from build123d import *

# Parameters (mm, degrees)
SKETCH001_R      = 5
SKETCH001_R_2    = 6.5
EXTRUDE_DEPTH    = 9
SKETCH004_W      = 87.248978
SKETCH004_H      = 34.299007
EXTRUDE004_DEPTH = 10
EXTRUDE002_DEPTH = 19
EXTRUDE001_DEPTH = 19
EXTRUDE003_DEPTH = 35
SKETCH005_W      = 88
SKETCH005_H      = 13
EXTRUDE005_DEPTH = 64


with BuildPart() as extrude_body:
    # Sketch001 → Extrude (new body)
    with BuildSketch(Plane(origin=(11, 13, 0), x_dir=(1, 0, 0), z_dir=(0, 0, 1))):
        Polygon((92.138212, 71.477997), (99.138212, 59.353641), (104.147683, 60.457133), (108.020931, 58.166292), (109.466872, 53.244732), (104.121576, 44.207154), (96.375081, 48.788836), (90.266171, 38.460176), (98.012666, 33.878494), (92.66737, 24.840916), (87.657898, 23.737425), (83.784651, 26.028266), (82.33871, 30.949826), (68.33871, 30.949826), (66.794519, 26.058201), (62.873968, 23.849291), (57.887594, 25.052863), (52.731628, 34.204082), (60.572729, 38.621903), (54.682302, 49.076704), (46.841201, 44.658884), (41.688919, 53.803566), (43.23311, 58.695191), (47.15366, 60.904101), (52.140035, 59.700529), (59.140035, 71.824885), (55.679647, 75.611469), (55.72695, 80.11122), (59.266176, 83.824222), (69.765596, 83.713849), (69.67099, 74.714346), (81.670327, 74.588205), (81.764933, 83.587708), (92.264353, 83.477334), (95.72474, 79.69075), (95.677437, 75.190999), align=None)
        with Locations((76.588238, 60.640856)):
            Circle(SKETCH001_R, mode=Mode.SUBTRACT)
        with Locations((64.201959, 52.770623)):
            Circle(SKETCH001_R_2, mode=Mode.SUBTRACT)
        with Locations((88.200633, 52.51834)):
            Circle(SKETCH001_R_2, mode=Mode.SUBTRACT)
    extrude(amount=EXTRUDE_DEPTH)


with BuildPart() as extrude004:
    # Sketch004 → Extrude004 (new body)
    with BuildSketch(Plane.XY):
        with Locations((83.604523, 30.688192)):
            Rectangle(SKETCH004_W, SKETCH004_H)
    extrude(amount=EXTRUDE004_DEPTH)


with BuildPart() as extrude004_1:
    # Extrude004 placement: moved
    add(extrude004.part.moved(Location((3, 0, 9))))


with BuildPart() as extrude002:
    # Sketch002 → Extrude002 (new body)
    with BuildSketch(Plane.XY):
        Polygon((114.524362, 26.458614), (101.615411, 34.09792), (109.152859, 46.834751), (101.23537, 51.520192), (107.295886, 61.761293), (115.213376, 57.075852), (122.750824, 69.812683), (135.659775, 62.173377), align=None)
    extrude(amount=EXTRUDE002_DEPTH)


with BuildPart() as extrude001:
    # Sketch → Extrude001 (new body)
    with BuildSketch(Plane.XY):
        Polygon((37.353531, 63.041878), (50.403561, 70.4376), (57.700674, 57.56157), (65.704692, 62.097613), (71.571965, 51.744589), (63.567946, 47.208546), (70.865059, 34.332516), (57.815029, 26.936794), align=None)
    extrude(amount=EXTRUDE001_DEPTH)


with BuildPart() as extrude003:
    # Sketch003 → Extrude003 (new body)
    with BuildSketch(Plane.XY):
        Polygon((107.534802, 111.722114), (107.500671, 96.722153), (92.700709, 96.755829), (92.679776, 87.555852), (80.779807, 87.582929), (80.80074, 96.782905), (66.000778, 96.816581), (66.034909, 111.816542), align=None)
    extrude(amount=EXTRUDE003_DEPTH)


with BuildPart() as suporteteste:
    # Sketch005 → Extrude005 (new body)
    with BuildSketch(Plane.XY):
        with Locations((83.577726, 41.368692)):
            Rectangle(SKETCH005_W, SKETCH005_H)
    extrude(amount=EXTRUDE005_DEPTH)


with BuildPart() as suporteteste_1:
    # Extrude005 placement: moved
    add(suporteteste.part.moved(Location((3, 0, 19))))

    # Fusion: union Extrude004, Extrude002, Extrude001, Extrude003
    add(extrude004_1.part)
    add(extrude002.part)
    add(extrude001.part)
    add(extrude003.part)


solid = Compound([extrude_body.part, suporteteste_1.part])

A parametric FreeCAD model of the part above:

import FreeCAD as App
import Part
import Sketcher
Q = App.Units.Quantity

doc = App.newDocument("Part")
body = doc.addObject("PartDesign::Body", "Body")

# Sketch on XY plane
sketch1 = doc.addObject("Sketcher::SketchObject", "Sketch")
body.addObject(sketch1)
sketch1.AttachmentSupport = (doc.XY_Plane, [""])
sketch1.MapMode = "FlatFace"
sketch1.addGeometry([
    Part.LineSegment(App.Vector(110.1, 72.4, 0), App.Vector(103.1, 84.5, 0)),  # 0
    Part.LineSegment(App.Vector(103.1, 84.5, 0), App.Vector(106.7, 88.2, 0)),  # 1
    Part.LineSegment(App.Vector(106.7, 88.2, 0), App.Vector(106.7, 92.7, 0)),  # 2
    Part.LineSegment(App.Vector(106.7, 92.7, 0), App.Vector(103.3, 96.5, 0)),  # 3
    Part.LineSegment(App.Vector(103.3, 96.5, 0), App.Vector(92.8, 96.6, 0)),  # 4
    Part.LineSegment(App.Vector(92.8, 96.6, 0), App.Vector(92.7, 87.6, 0)),  # 5
    Part.LineSegment(App.Vector(92.7, 87.6, 0), App.Vector(80.7, 87.7, 0)),  # 6
    Part.LineSegment(App.Vector(80.7, 87.7, 0), App.Vector(80.8, 96.7, 0)),  # 7
    Part.LineSegment(App.Vector(80.8, 96.7, 0), App.Vector(70.3, 96.8, 0)),  # 8
    Part.LineSegment(App.Vector(70.3, 96.8, 0), App.Vector(66.7, 93.1, 0)),  # 9
    Part.LineSegment(App.Vector(66.7, 93.1, 0), App.Vector(66.7, 88.6, 0)),  # 10
    Part.LineSegment(App.Vector(66.7, 88.6, 0), App.Vector(70.1, 84.8, 0)),  # 11
    Part.LineSegment(App.Vector(70.1, 84.8, 0), App.Vector(63.1, 72.7, 0)),  # 12
    Part.LineSegment(App.Vector(63.1, 72.7, 0), App.Vector(58.2, 73.9, 0)),  # 13
    Part.LineSegment(App.Vector(58.2, 73.9, 0), App.Vector(54.2, 71.7, 0)),  # 14
    Part.LineSegment(App.Vector(54.2, 71.7, 0), App.Vector(52.7, 66.8, 0)),  # 15
    Part.LineSegment(App.Vector(52.7, 66.8, 0), App.Vector(57.8, 57.7, 0)),  # 16
    Part.LineSegment(App.Vector(57.8, 57.7, 0), App.Vector(65.7, 62.1, 0)),  # 17
    Part.LineSegment(App.Vector(65.7, 62.1, 0), App.Vector(71.6, 51.6, 0)),  # 18
    Part.LineSegment(App.Vector(71.6, 51.6, 0), App.Vector(63.7, 47.2, 0)),  # 19
    Part.LineSegment(App.Vector(63.7, 47.2, 0), App.Vector(68.9, 38.1, 0)),  # 20
    Part.LineSegment(App.Vector(68.9, 38.1, 0), App.Vector(73.9, 36.8, 0)),  # 21
    Part.LineSegment(App.Vector(73.9, 36.8, 0), App.Vector(77.8, 39.1, 0)),  # 22
    Part.LineSegment(App.Vector(77.8, 39.1, 0), App.Vector(79.3, 43.9, 0)),  # 23
    Part.LineSegment(App.Vector(79.3, 43.9, 0), App.Vector(93.3, 43.9, 0)),  # 24
    Part.LineSegment(App.Vector(93.3, 43.9, 0), App.Vector(94.8, 39, 0)),  # 25
    Part.LineSegment(App.Vector(94.8, 39, 0), App.Vector(98.7, 36.7, 0)),  # 26
    Part.LineSegment(App.Vector(98.7, 36.7, 0), App.Vector(103.7, 37.8, 0)),  # 27
    Part.LineSegment(App.Vector(103.7, 37.8, 0), App.Vector(109, 46.9, 0)),  # 28
    Part.LineSegment(App.Vector(109, 46.9, 0), App.Vector(101.3, 51.5, 0)),  # 29
    Part.LineSegment(App.Vector(101.3, 51.5, 0), App.Vector(107.4, 61.8, 0)),  # 30
    Part.LineSegment(App.Vector(107.4, 61.8, 0), App.Vector(115.1, 57.2, 0)),  # 31
    Part.LineSegment(App.Vector(115.1, 57.2, 0), App.Vector(120.5, 66.2, 0)),  # 32
    Part.LineSegment(App.Vector(120.5, 66.2, 0), App.Vector(119, 71.2, 0)),  # 33
    Part.LineSegment(App.Vector(119, 71.2, 0), App.Vector(115.1, 73.5, 0)),  # 34
    Part.LineSegment(App.Vector(115.1, 73.5, 0), App.Vector(110.1, 72.4, 0)),  # 35
    Part.Circle(App.Vector(99.2, 65.5, 0), App.Vector(0, 0, 1), 6.5),  # 36
    Part.Circle(App.Vector(75.2, 65.8, 0), App.Vector(0, 0, 1), 6.5),  # 37
    Part.Circle(App.Vector(87.6, 73.6, 0), App.Vector(0, 0, 1), 5),  # 38
], False)
sketch1.addConstraint([
    Sketcher.Constraint("Coincident", 0, 2, 1, 1),
    Sketcher.Constraint("Coincident", 1, 2, 2, 1),
    Sketcher.Constraint("Coincident", 2, 2, 3, 1),
    Sketcher.Constraint("Coincident", 3, 2, 4, 1),
    Sketcher.Constraint("Coincident", 4, 2, 5, 1),
    Sketcher.Constraint("Coincident", 5, 2, 6, 1),
    Sketcher.Constraint("Coincident", 6, 2, 7, 1),
    Sketcher.Constraint("Coincident", 7, 2, 8, 1),
    Sketcher.Constraint("Coincident", 8, 2, 9, 1),
    Sketcher.Constraint("Coincident", 9, 2, 10, 1),
    Sketcher.Constraint("Coincident", 10, 2, 11, 1),
    Sketcher.Constraint("Coincident", 11, 2, 12, 1),
    Sketcher.Constraint("Coincident", 12, 2, 13, 1),
    Sketcher.Constraint("Coincident", 13, 2, 14, 1),
    Sketcher.Constraint("Coincident", 14, 2, 15, 1),
    Sketcher.Constraint("Coincident", 15, 2, 16, 1),
    Sketcher.Constraint("Coincident", 16, 2, 17, 1),
    Sketcher.Constraint("Coincident", 17, 2, 18, 1),
    Sketcher.Constraint("Coincident", 18, 2, 19, 1),
    Sketcher.Constraint("Coincident", 19, 2, 20, 1),
    Sketcher.Constraint("Coincident", 20, 2, 21, 1),
    Sketcher.Constraint("Coincident", 21, 2, 22, 1),
    Sketcher.Constraint("Coincident", 22, 2, 23, 1),
    Sketcher.Constraint("Coincident", 23, 2, 24, 1),
    Sketcher.Constraint("Coincident", 24, 2, 25, 1),
    Sketcher.Constraint("Coincident", 25, 2, 26, 1),
    Sketcher.Constraint("Coincident", 26, 2, 27, 1),
    Sketcher.Constraint("Coincident", 27, 2, 28, 1),
    Sketcher.Constraint("Coincident", 28, 2, 29, 1),
    Sketcher.Constraint("Coincident", 29, 2, 30, 1),
    Sketcher.Constraint("Coincident", 30, 2, 31, 1),
    Sketcher.Constraint("Coincident", 31, 2, 32, 1),
    Sketcher.Constraint("Coincident", 32, 2, 33, 1),
    Sketcher.Constraint("Coincident", 33, 2, 34, 1),
    Sketcher.Constraint("Coincident", 34, 2, 35, 1),
    Sketcher.Constraint("Coincident", 35, 2, 0, 1),
    Sketcher.Constraint("Horizontal", 24),
    Sketcher.Constraint("Equal", 36, 37),
    Sketcher.Constraint("Perpendicular", 2, 4),
    Sketcher.Constraint("Perpendicular", 4, 5),
    Sketcher.Constraint("Perpendicular", 5, 6),
    Sketcher.Constraint("Perpendicular", 6, 7),
    Sketcher.Constraint("Perpendicular", 7, 8),
    Sketcher.Constraint("Parallel", 1, 9),
    Sketcher.Constraint("Perpendicular", 8, 10),
    Sketcher.Constraint("Parallel", 3, 11),
    Sketcher.Constraint("Perpendicular", 14, 16),
    Sketcher.Constraint("Perpendicular", 16, 17),
    Sketcher.Constraint("Perpendicular", 17, 18),
    Sketcher.Constraint("Perpendicular", 18, 19),
    Sketcher.Constraint("Perpendicular", 19, 20),
    Sketcher.Constraint("Parallel", 13, 21),
    Sketcher.Constraint("Perpendicular", 20, 22),
    Sketcher.Constraint("Parallel", 15, 23),
    Sketcher.Constraint("Perpendicular", 26, 28),
    Sketcher.Constraint("Perpendicular", 28, 29),
    Sketcher.Constraint("Perpendicular", 29, 30),
    Sketcher.Constraint("Perpendicular", 30, 31),
    Sketcher.Constraint("Perpendicular", 31, 32),
    Sketcher.Constraint("Parallel", 25, 33),
    Sketcher.Constraint("Perpendicular", 32, 34),
    Sketcher.Constraint("Parallel", 27, 35),
    Sketcher.Constraint("Equal", 1, 3),
    Sketcher.Constraint("Equal", 5, 7),
    Sketcher.Constraint("Equal", 4, 8),
    Sketcher.Constraint("Equal", 3, 9),
    Sketcher.Constraint("Equal", 2, 10),
    Sketcher.Constraint("Equal", 9, 11),
    Sketcher.Constraint("Equal", 0, 12),
    Sketcher.Constraint("Equal", 11, 13),
    Sketcher.Constraint("Equal", 10, 14),
    Sketcher.Constraint("Equal", 13, 15),
    Sketcher.Constraint("Equal", 7, 17),
    Sketcher.Constraint("Equal", 6, 18),
    Sketcher.Constraint("Equal", 17, 19),
    Sketcher.Constraint("Equal", 15, 21),
    Sketcher.Constraint("Equal", 14, 22),
    Sketcher.Constraint("Equal", 21, 23),
    Sketcher.Constraint("Equal", 21, 25),
    Sketcher.Constraint("Equal", 22, 26),
    Sketcher.Constraint("Equal", 25, 27),
    Sketcher.Constraint("Equal", 8, 28),
    Sketcher.Constraint("Equal", 19, 29),
    Sketcher.Constraint("Equal", 18, 30),
    Sketcher.Constraint("Equal", 29, 31),
    Sketcher.Constraint("Equal", 28, 32),
    Sketcher.Constraint("Equal", 27, 33),
    Sketcher.Constraint("Equal", 26, 34),
    Sketcher.Constraint("Equal", 33, 35),
    Sketcher.Constraint("Diameter", 36, 13.0),
    Sketcher.Constraint("Diameter", 38, 10.0),
    Sketcher.Constraint("DistanceX", 24, 1, 24, 2, 14.0),
    Sketcher.Constraint("Angle", 0, Q("119.999999 deg")),
    Sketcher.Constraint("Angle", 12, Q("-119.999999 deg")),
    Sketcher.Constraint("Distance", 0, 14.0),
    Sketcher.Constraint("Distance", 5, 9.0),
    Sketcher.Constraint("Distance", 6, 12.0),
    Sketcher.Constraint("Distance", 2, 4.5),
    Sketcher.Constraint("Distance", 4, 10.5),
    Sketcher.Constraint("DistanceY", -1, 1, 1, 2, 88.190999),
    Sketcher.Constraint("DistanceY", -1, 1, 13, 2, 73.904101),
    Sketcher.Constraint("DistanceX", -1, 1, 16, 2, 57.841201),
    Sketcher.Constraint("DistanceY", -1, 1, 22, 2, 39.058201),
    Sketcher.Constraint("DistanceX", -1, 1, 26, 2, 98.657898),
    Sketcher.Constraint("DistanceX", 38, 3, 1, 2, 19.089199),
    Sketcher.Constraint("DistanceX", 38, 3, 2, 2, 19.136502),
    Sketcher.Constraint("DistanceX", 13, 2, 37, 3, 17.048299),
    Sketcher.Constraint("DistanceX", 16, 2, 17, 2, 7.841101),
    Sketcher.Constraint("DistanceY", 26, 2, 24, 2, 7.212401),
    Sketcher.Constraint("DistanceX", 36, 3, 33, 2, 19.820298),
    Sketcher.Constraint("DistanceY", 36, 3, 35, 2, 6.835301),
    Sketcher.Constraint("Distance", 1, 5.129571),
    Sketcher.Constraint("Distance", 20, 10.503751),
    Sketcher.Constraint("DistanceY", -1, 1, 4, 2, 96.587708),
    Sketcher.Constraint("DistanceX", -1, 1, 27, 2, 103.66737),
    Sketcher.Constraint("DistanceY", 38, 3, 0, 2, 10.837141),
    Sketcher.Constraint("DistanceY", 16, 2, 37, 3, 8.111739),
])
pad1 = doc.addObject("PartDesign::Pad", "Pad")
body.addObject(pad1)
pad1.Profile = sketch1
pad1.Length = 9
body2 = doc.addObject("PartDesign::Body", "Body001")

# Sketch on XY plane
sketch2 = doc.addObject("Sketcher::SketchObject", "Sketch001")
body2.addObject(sketch2)
sketch2.AttachmentSupport = (doc.getObject("XY_Plane001"), [""])
sketch2.MapMode = "FlatFace"
sketch2.addGeometry([
    Part.LineSegment(App.Vector(40, 48, 0), App.Vector(40, 14, 0)),
    Part.LineSegment(App.Vector(40, 14, 0), App.Vector(127, 14, 0)),
    Part.LineSegment(App.Vector(127, 14, 0), App.Vector(127, 48, 0)),
    Part.LineSegment(App.Vector(127, 48, 0), App.Vector(40, 48, 0)),
], False)
sketch2.addConstraint([
    Sketcher.Constraint("Coincident", 0, 2, 1, 1),
    Sketcher.Constraint("Coincident", 1, 2, 2, 1),
    Sketcher.Constraint("Coincident", 2, 2, 3, 1),
    Sketcher.Constraint("Coincident", 3, 2, 0, 1),
    Sketcher.Constraint("Vertical", 0),
    Sketcher.Constraint("Horizontal", 1),
    Sketcher.Constraint("Vertical", 2),
    Sketcher.Constraint("Horizontal", 3),
    Sketcher.Constraint("DistanceX", 1, 1, 1, 2, 87.248978),
    Sketcher.Constraint("DistanceY", 0, 2, 0, 1, 34.299007),
    Sketcher.Constraint("DistanceY", -1, 1, 0, 2, 13.538688),
    Sketcher.Constraint("DistanceX", -1, 1, 1, 2, 127.229012),
])
pad2 = doc.addObject("PartDesign::Pad", "Pad001")
body2.addObject(pad2)
pad2.Profile = sketch2
pad2.Length = 10
body3 = doc.addObject("PartDesign::Body", "Body002")
doc.recompute()

body2.Placement = App.Placement(App.Vector(3, 0, 9), App.Rotation(App.Vector(0, 0, 1), 0))
boolean = doc.addObject("PartDesign::Boolean", "Boolean")
body3.addObject(boolean)
boolean.Type = "Fuse"
boolean.addObjects([body2])
body4 = doc.addObject("PartDesign::Body", "Body003")

# Sketch on XY plane
sketch3 = doc.addObject("Sketcher::SketchObject", "Sketch002")
body4.addObject(sketch3)
sketch3.AttachmentSupport = (doc.getObject("XY_Plane003"), [""])
sketch3.MapMode = "FlatFace"
sketch3.addGeometry([
    Part.LineSegment(App.Vector(102, 34, 0), App.Vector(115, 26, 0)),  # 0
    Part.LineSegment(App.Vector(115, 26, 0), App.Vector(136, 62, 0)),  # 1
    Part.LineSegment(App.Vector(136, 62, 0), App.Vector(123, 70, 0)),  # 2
    Part.LineSegment(App.Vector(123, 70, 0), App.Vector(115, 57, 0)),  # 3
    Part.LineSegment(App.Vector(115, 57, 0), App.Vector(107, 62, 0)),  # 4
    Part.LineSegment(App.Vector(107, 62, 0), App.Vector(101, 52, 0)),  # 5
    Part.LineSegment(App.Vector(101, 52, 0), App.Vector(109, 47, 0)),  # 6
    Part.LineSegment(App.Vector(109, 47, 0), App.Vector(102, 34, 0)),  # 7
], False)
sketch3.addConstraint([
    Sketcher.Constraint("Coincident", 0, 2, 1, 1),
    Sketcher.Constraint("Coincident", 1, 2, 2, 1),
    Sketcher.Constraint("Coincident", 2, 2, 3, 1),
    Sketcher.Constraint("Coincident", 3, 2, 4, 1),
    Sketcher.Constraint("Coincident", 4, 2, 5, 1),
    Sketcher.Constraint("Coincident", 5, 2, 6, 1),
    Sketcher.Constraint("Coincident", 6, 2, 7, 1),
    Sketcher.Constraint("Coincident", 7, 2, 0, 1),
    Sketcher.Constraint("Perpendicular", 0, 1),
    Sketcher.Constraint("Perpendicular", 1, 2),
    Sketcher.Constraint("Perpendicular", 2, 3),
    Sketcher.Constraint("Perpendicular", 3, 4),
    Sketcher.Constraint("Perpendicular", 4, 5),
    Sketcher.Constraint("Perpendicular", 5, 6),
    Sketcher.Constraint("Perpendicular", 6, 7),
    Sketcher.Constraint("Equal", 0, 2),
    Sketcher.Constraint("Equal", 3, 7),
    Sketcher.Constraint("Distance", 0, 15.0),
    Sketcher.Constraint("Distance", 1, 41.5),
    Sketcher.Constraint("Distance", 3, 14.8),
    Sketcher.Constraint("Distance", 4, 9.2),
    Sketcher.Constraint("DistanceX", 3, 2, 1, 2, 20.446399),
    Sketcher.Constraint("DistanceX", -1, 1, 0, 2, 114.524362),
    Sketcher.Constraint("DistanceY", -1, 1, 3, 2, 57.075852),
])
pad3 = doc.addObject("PartDesign::Pad", "Pad002")
body4.addObject(pad3)
pad3.Profile = sketch3
pad3.Length = 19
body5 = doc.addObject("PartDesign::Body", "Body004")

# Sketch on XY plane
sketch4 = doc.addObject("Sketcher::SketchObject", "Sketch003")
body5.addObject(sketch4)
sketch4.AttachmentSupport = (doc.getObject("XY_Plane004"), [""])
sketch4.MapMode = "FlatFace"
sketch4.addGeometry([
    Part.LineSegment(App.Vector(50, 70, 0), App.Vector(37, 63, 0)),  # 0
    Part.LineSegment(App.Vector(37, 63, 0), App.Vector(58, 27, 0)),  # 1
    Part.LineSegment(App.Vector(58, 27, 0), App.Vector(71, 34, 0)),  # 2
    Part.LineSegment(App.Vector(71, 34, 0), App.Vector(64, 47, 0)),  # 3
    Part.LineSegment(App.Vector(64, 47, 0), App.Vector(72, 52, 0)),  # 4
    Part.LineSegment(App.Vector(72, 52, 0), App.Vector(66, 62, 0)),  # 5
    Part.LineSegment(App.Vector(66, 62, 0), App.Vector(58, 58, 0)),  # 6
    Part.LineSegment(App.Vector(58, 58, 0), App.Vector(50, 70, 0)),  # 7
], False)
sketch4.addConstraint([
    Sketcher.Constraint("Coincident", 0, 2, 1, 1),
    Sketcher.Constraint("Coincident", 1, 2, 2, 1),
    Sketcher.Constraint("Coincident", 2, 2, 3, 1),
    Sketcher.Constraint("Coincident", 3, 2, 4, 1),
    Sketcher.Constraint("Coincident", 4, 2, 5, 1),
    Sketcher.Constraint("Coincident", 5, 2, 6, 1),
    Sketcher.Constraint("Coincident", 6, 2, 7, 1),
    Sketcher.Constraint("Coincident", 7, 2, 0, 1),
    Sketcher.Constraint("Perpendicular", 0, 1),
    Sketcher.Constraint("Perpendicular", 1, 2),
    Sketcher.Constraint("Perpendicular", 2, 3),
    Sketcher.Constraint("Perpendicular", 3, 4),
    Sketcher.Constraint("Perpendicular", 4, 5),
    Sketcher.Constraint("Perpendicular", 5, 6),
    Sketcher.Constraint("Perpendicular", 6, 7),
    Sketcher.Constraint("Equal", 0, 2),
    Sketcher.Constraint("Equal", 3, 7),
    Sketcher.Constraint("Distance", 0, 15.0),
    Sketcher.Constraint("Distance", 1, 41.5),
    Sketcher.Constraint("Distance", 3, 14.8),
    Sketcher.Constraint("Distance", 4, 9.2),
    Sketcher.Constraint("DistanceY", -1, 1, 7, 2, 70.4376),
    Sketcher.Constraint("DistanceX", 0, 2, 1, 2, 20.461498),
    Sketcher.Constraint("DistanceX", -1, 1, 0, 2, 37.353531),
])
pad4 = doc.addObject("PartDesign::Pad", "Pad003")
body5.addObject(pad4)
pad4.Profile = sketch4
pad4.Length = 19
body6 = doc.addObject("PartDesign::Body", "Body005")

# Sketch on XY plane
sketch5 = doc.addObject("Sketcher::SketchObject", "Sketch004")
body6.addObject(sketch5)
sketch5.AttachmentSupport = (doc.getObject("XY_Plane005"), [""])
sketch5.MapMode = "FlatFace"
sketch5.addGeometry([
    Part.LineSegment(App.Vector(108, 97, 0), App.Vector(108, 112, 0)),  # 0
    Part.LineSegment(App.Vector(108, 112, 0), App.Vector(66, 112, 0)),  # 1
    Part.LineSegment(App.Vector(66, 112, 0), App.Vector(66, 97, 0)),  # 2
    Part.LineSegment(App.Vector(66, 97, 0), App.Vector(81, 97, 0)),  # 3
    Part.LineSegment(App.Vector(81, 97, 0), App.Vector(81, 88, 0)),  # 4
    Part.LineSegment(App.Vector(81, 88, 0), App.Vector(93, 88, 0)),  # 5
    Part.LineSegment(App.Vector(93, 88, 0), App.Vector(93, 97, 0)),  # 6
    Part.LineSegment(App.Vector(93, 97, 0), App.Vector(108, 97, 0)),  # 7
], False)
sketch5.addConstraint([
    Sketcher.Constraint("Coincident", 0, 2, 1, 1),
    Sketcher.Constraint("Coincident", 1, 2, 2, 1),
    Sketcher.Constraint("Coincident", 2, 2, 3, 1),
    Sketcher.Constraint("Coincident", 3, 2, 4, 1),
    Sketcher.Constraint("Coincident", 4, 2, 5, 1),
    Sketcher.Constraint("Coincident", 5, 2, 6, 1),
    Sketcher.Constraint("Coincident", 6, 2, 7, 1),
    Sketcher.Constraint("Coincident", 7, 2, 0, 1),
    Sketcher.Constraint("Perpendicular", 0, 1),
    Sketcher.Constraint("Perpendicular", 1, 2),
    Sketcher.Constraint("Perpendicular", 2, 3),
    Sketcher.Constraint("Perpendicular", 3, 4),
    Sketcher.Constraint("Perpendicular", 4, 5),
    Sketcher.Constraint("Perpendicular", 5, 6),
    Sketcher.Constraint("Perpendicular", 6, 7),
    Sketcher.Constraint("Equal", 0, 2),
    Sketcher.Constraint("Equal", 3, 7),
    Sketcher.Constraint("Distance", 0, 15.0),
    Sketcher.Constraint("Distance", 1, 41.5),
    Sketcher.Constraint("Distance", 3, 14.8),
    Sketcher.Constraint("Distance", 4, 9.2),
    Sketcher.Constraint("DistanceX", 2, 2, 5, 2, 26.678998),
    Sketcher.Constraint("DistanceX", -1, 1, 0, 2, 107.534802),
    Sketcher.Constraint("DistanceY", -1, 1, 1, 2, 111.816542),
])
pad5 = doc.addObject("PartDesign::Pad", "Pad004")
body6.addObject(pad5)
pad5.Profile = sketch5
pad5.Length = 35
body7 = doc.addObject("PartDesign::Body", "Body006")

# Sketch on XY plane
sketch6 = doc.addObject("Sketcher::SketchObject", "Sketch005")
body7.addObject(sketch6)
sketch6.AttachmentSupport = (doc.getObject("XY_Plane006"), [""])
sketch6.MapMode = "FlatFace"
sketch6.addGeometry([
    Part.LineSegment(App.Vector(40, 48, 0), App.Vector(40, 35, 0)),
    Part.LineSegment(App.Vector(40, 35, 0), App.Vector(128, 35, 0)),
    Part.LineSegment(App.Vector(128, 35, 0), App.Vector(128, 48, 0)),
    Part.LineSegment(App.Vector(128, 48, 0), App.Vector(40, 48, 0)),
], False)
sketch6.addConstraint([
    Sketcher.Constraint("Coincident", 0, 2, 1, 1),
    Sketcher.Constraint("Coincident", 1, 2, 2, 1),
    Sketcher.Constraint("Coincident", 2, 2, 3, 1),
    Sketcher.Constraint("Coincident", 3, 2, 0, 1),
    Sketcher.Constraint("Vertical", 0),
    Sketcher.Constraint("Horizontal", 1),
    Sketcher.Constraint("Vertical", 2),
    Sketcher.Constraint("Horizontal", 3),
    Sketcher.Constraint("DistanceX", 1, 1, 1, 2, 88.0),
    Sketcher.Constraint("DistanceY", 0, 2, 0, 1, 13.0),
    Sketcher.Constraint("DistanceX", -1, 1, 0, 2, 39.577726),
    Sketcher.Constraint("DistanceY", -1, 1, 0, 2, 34.868692),
])
pad6 = doc.addObject("PartDesign::Pad", "Pad005")
body7.addObject(pad6)
pad6.Profile = sketch6
pad6.Length = 64
body8 = doc.addObject("PartDesign::Body", "Body007")
body8.AllowCompound = True
doc.recompute()

body7.Placement = App.Placement(App.Vector(3, 0, 19), App.Rotation(App.Vector(0, 0, 1), 0))
boolean2 = doc.addObject("PartDesign::Boolean", "Boolean001")
body8.addObject(boolean2)
boolean2.Type = "Fuse"
boolean2.addObjects([body7])
doc.recompute()

boolean3 = doc.addObject("PartDesign::Boolean", "Boolean002")
body8.addObject(boolean3)
boolean3.Type = "Fuse"
boolean3.addObjects([body3])
doc.recompute()

boolean4 = doc.addObject("PartDesign::Boolean", "Boolean003")
body8.addObject(boolean4)
boolean4.Type = "Fuse"
boolean4.addObjects([body4])
doc.recompute()

boolean5 = doc.addObject("PartDesign::Boolean", "Boolean004")
body8.addObject(boolean5)
boolean5.Type = "Fuse"
boolean5.addObjects([body5])
doc.recompute()

boolean6 = doc.addObject("PartDesign::Boolean", "Boolean005")
body8.addObject(boolean6)
boolean6.Type = "Fuse"
boolean6.addObjects([body6])

doc.recompute()
